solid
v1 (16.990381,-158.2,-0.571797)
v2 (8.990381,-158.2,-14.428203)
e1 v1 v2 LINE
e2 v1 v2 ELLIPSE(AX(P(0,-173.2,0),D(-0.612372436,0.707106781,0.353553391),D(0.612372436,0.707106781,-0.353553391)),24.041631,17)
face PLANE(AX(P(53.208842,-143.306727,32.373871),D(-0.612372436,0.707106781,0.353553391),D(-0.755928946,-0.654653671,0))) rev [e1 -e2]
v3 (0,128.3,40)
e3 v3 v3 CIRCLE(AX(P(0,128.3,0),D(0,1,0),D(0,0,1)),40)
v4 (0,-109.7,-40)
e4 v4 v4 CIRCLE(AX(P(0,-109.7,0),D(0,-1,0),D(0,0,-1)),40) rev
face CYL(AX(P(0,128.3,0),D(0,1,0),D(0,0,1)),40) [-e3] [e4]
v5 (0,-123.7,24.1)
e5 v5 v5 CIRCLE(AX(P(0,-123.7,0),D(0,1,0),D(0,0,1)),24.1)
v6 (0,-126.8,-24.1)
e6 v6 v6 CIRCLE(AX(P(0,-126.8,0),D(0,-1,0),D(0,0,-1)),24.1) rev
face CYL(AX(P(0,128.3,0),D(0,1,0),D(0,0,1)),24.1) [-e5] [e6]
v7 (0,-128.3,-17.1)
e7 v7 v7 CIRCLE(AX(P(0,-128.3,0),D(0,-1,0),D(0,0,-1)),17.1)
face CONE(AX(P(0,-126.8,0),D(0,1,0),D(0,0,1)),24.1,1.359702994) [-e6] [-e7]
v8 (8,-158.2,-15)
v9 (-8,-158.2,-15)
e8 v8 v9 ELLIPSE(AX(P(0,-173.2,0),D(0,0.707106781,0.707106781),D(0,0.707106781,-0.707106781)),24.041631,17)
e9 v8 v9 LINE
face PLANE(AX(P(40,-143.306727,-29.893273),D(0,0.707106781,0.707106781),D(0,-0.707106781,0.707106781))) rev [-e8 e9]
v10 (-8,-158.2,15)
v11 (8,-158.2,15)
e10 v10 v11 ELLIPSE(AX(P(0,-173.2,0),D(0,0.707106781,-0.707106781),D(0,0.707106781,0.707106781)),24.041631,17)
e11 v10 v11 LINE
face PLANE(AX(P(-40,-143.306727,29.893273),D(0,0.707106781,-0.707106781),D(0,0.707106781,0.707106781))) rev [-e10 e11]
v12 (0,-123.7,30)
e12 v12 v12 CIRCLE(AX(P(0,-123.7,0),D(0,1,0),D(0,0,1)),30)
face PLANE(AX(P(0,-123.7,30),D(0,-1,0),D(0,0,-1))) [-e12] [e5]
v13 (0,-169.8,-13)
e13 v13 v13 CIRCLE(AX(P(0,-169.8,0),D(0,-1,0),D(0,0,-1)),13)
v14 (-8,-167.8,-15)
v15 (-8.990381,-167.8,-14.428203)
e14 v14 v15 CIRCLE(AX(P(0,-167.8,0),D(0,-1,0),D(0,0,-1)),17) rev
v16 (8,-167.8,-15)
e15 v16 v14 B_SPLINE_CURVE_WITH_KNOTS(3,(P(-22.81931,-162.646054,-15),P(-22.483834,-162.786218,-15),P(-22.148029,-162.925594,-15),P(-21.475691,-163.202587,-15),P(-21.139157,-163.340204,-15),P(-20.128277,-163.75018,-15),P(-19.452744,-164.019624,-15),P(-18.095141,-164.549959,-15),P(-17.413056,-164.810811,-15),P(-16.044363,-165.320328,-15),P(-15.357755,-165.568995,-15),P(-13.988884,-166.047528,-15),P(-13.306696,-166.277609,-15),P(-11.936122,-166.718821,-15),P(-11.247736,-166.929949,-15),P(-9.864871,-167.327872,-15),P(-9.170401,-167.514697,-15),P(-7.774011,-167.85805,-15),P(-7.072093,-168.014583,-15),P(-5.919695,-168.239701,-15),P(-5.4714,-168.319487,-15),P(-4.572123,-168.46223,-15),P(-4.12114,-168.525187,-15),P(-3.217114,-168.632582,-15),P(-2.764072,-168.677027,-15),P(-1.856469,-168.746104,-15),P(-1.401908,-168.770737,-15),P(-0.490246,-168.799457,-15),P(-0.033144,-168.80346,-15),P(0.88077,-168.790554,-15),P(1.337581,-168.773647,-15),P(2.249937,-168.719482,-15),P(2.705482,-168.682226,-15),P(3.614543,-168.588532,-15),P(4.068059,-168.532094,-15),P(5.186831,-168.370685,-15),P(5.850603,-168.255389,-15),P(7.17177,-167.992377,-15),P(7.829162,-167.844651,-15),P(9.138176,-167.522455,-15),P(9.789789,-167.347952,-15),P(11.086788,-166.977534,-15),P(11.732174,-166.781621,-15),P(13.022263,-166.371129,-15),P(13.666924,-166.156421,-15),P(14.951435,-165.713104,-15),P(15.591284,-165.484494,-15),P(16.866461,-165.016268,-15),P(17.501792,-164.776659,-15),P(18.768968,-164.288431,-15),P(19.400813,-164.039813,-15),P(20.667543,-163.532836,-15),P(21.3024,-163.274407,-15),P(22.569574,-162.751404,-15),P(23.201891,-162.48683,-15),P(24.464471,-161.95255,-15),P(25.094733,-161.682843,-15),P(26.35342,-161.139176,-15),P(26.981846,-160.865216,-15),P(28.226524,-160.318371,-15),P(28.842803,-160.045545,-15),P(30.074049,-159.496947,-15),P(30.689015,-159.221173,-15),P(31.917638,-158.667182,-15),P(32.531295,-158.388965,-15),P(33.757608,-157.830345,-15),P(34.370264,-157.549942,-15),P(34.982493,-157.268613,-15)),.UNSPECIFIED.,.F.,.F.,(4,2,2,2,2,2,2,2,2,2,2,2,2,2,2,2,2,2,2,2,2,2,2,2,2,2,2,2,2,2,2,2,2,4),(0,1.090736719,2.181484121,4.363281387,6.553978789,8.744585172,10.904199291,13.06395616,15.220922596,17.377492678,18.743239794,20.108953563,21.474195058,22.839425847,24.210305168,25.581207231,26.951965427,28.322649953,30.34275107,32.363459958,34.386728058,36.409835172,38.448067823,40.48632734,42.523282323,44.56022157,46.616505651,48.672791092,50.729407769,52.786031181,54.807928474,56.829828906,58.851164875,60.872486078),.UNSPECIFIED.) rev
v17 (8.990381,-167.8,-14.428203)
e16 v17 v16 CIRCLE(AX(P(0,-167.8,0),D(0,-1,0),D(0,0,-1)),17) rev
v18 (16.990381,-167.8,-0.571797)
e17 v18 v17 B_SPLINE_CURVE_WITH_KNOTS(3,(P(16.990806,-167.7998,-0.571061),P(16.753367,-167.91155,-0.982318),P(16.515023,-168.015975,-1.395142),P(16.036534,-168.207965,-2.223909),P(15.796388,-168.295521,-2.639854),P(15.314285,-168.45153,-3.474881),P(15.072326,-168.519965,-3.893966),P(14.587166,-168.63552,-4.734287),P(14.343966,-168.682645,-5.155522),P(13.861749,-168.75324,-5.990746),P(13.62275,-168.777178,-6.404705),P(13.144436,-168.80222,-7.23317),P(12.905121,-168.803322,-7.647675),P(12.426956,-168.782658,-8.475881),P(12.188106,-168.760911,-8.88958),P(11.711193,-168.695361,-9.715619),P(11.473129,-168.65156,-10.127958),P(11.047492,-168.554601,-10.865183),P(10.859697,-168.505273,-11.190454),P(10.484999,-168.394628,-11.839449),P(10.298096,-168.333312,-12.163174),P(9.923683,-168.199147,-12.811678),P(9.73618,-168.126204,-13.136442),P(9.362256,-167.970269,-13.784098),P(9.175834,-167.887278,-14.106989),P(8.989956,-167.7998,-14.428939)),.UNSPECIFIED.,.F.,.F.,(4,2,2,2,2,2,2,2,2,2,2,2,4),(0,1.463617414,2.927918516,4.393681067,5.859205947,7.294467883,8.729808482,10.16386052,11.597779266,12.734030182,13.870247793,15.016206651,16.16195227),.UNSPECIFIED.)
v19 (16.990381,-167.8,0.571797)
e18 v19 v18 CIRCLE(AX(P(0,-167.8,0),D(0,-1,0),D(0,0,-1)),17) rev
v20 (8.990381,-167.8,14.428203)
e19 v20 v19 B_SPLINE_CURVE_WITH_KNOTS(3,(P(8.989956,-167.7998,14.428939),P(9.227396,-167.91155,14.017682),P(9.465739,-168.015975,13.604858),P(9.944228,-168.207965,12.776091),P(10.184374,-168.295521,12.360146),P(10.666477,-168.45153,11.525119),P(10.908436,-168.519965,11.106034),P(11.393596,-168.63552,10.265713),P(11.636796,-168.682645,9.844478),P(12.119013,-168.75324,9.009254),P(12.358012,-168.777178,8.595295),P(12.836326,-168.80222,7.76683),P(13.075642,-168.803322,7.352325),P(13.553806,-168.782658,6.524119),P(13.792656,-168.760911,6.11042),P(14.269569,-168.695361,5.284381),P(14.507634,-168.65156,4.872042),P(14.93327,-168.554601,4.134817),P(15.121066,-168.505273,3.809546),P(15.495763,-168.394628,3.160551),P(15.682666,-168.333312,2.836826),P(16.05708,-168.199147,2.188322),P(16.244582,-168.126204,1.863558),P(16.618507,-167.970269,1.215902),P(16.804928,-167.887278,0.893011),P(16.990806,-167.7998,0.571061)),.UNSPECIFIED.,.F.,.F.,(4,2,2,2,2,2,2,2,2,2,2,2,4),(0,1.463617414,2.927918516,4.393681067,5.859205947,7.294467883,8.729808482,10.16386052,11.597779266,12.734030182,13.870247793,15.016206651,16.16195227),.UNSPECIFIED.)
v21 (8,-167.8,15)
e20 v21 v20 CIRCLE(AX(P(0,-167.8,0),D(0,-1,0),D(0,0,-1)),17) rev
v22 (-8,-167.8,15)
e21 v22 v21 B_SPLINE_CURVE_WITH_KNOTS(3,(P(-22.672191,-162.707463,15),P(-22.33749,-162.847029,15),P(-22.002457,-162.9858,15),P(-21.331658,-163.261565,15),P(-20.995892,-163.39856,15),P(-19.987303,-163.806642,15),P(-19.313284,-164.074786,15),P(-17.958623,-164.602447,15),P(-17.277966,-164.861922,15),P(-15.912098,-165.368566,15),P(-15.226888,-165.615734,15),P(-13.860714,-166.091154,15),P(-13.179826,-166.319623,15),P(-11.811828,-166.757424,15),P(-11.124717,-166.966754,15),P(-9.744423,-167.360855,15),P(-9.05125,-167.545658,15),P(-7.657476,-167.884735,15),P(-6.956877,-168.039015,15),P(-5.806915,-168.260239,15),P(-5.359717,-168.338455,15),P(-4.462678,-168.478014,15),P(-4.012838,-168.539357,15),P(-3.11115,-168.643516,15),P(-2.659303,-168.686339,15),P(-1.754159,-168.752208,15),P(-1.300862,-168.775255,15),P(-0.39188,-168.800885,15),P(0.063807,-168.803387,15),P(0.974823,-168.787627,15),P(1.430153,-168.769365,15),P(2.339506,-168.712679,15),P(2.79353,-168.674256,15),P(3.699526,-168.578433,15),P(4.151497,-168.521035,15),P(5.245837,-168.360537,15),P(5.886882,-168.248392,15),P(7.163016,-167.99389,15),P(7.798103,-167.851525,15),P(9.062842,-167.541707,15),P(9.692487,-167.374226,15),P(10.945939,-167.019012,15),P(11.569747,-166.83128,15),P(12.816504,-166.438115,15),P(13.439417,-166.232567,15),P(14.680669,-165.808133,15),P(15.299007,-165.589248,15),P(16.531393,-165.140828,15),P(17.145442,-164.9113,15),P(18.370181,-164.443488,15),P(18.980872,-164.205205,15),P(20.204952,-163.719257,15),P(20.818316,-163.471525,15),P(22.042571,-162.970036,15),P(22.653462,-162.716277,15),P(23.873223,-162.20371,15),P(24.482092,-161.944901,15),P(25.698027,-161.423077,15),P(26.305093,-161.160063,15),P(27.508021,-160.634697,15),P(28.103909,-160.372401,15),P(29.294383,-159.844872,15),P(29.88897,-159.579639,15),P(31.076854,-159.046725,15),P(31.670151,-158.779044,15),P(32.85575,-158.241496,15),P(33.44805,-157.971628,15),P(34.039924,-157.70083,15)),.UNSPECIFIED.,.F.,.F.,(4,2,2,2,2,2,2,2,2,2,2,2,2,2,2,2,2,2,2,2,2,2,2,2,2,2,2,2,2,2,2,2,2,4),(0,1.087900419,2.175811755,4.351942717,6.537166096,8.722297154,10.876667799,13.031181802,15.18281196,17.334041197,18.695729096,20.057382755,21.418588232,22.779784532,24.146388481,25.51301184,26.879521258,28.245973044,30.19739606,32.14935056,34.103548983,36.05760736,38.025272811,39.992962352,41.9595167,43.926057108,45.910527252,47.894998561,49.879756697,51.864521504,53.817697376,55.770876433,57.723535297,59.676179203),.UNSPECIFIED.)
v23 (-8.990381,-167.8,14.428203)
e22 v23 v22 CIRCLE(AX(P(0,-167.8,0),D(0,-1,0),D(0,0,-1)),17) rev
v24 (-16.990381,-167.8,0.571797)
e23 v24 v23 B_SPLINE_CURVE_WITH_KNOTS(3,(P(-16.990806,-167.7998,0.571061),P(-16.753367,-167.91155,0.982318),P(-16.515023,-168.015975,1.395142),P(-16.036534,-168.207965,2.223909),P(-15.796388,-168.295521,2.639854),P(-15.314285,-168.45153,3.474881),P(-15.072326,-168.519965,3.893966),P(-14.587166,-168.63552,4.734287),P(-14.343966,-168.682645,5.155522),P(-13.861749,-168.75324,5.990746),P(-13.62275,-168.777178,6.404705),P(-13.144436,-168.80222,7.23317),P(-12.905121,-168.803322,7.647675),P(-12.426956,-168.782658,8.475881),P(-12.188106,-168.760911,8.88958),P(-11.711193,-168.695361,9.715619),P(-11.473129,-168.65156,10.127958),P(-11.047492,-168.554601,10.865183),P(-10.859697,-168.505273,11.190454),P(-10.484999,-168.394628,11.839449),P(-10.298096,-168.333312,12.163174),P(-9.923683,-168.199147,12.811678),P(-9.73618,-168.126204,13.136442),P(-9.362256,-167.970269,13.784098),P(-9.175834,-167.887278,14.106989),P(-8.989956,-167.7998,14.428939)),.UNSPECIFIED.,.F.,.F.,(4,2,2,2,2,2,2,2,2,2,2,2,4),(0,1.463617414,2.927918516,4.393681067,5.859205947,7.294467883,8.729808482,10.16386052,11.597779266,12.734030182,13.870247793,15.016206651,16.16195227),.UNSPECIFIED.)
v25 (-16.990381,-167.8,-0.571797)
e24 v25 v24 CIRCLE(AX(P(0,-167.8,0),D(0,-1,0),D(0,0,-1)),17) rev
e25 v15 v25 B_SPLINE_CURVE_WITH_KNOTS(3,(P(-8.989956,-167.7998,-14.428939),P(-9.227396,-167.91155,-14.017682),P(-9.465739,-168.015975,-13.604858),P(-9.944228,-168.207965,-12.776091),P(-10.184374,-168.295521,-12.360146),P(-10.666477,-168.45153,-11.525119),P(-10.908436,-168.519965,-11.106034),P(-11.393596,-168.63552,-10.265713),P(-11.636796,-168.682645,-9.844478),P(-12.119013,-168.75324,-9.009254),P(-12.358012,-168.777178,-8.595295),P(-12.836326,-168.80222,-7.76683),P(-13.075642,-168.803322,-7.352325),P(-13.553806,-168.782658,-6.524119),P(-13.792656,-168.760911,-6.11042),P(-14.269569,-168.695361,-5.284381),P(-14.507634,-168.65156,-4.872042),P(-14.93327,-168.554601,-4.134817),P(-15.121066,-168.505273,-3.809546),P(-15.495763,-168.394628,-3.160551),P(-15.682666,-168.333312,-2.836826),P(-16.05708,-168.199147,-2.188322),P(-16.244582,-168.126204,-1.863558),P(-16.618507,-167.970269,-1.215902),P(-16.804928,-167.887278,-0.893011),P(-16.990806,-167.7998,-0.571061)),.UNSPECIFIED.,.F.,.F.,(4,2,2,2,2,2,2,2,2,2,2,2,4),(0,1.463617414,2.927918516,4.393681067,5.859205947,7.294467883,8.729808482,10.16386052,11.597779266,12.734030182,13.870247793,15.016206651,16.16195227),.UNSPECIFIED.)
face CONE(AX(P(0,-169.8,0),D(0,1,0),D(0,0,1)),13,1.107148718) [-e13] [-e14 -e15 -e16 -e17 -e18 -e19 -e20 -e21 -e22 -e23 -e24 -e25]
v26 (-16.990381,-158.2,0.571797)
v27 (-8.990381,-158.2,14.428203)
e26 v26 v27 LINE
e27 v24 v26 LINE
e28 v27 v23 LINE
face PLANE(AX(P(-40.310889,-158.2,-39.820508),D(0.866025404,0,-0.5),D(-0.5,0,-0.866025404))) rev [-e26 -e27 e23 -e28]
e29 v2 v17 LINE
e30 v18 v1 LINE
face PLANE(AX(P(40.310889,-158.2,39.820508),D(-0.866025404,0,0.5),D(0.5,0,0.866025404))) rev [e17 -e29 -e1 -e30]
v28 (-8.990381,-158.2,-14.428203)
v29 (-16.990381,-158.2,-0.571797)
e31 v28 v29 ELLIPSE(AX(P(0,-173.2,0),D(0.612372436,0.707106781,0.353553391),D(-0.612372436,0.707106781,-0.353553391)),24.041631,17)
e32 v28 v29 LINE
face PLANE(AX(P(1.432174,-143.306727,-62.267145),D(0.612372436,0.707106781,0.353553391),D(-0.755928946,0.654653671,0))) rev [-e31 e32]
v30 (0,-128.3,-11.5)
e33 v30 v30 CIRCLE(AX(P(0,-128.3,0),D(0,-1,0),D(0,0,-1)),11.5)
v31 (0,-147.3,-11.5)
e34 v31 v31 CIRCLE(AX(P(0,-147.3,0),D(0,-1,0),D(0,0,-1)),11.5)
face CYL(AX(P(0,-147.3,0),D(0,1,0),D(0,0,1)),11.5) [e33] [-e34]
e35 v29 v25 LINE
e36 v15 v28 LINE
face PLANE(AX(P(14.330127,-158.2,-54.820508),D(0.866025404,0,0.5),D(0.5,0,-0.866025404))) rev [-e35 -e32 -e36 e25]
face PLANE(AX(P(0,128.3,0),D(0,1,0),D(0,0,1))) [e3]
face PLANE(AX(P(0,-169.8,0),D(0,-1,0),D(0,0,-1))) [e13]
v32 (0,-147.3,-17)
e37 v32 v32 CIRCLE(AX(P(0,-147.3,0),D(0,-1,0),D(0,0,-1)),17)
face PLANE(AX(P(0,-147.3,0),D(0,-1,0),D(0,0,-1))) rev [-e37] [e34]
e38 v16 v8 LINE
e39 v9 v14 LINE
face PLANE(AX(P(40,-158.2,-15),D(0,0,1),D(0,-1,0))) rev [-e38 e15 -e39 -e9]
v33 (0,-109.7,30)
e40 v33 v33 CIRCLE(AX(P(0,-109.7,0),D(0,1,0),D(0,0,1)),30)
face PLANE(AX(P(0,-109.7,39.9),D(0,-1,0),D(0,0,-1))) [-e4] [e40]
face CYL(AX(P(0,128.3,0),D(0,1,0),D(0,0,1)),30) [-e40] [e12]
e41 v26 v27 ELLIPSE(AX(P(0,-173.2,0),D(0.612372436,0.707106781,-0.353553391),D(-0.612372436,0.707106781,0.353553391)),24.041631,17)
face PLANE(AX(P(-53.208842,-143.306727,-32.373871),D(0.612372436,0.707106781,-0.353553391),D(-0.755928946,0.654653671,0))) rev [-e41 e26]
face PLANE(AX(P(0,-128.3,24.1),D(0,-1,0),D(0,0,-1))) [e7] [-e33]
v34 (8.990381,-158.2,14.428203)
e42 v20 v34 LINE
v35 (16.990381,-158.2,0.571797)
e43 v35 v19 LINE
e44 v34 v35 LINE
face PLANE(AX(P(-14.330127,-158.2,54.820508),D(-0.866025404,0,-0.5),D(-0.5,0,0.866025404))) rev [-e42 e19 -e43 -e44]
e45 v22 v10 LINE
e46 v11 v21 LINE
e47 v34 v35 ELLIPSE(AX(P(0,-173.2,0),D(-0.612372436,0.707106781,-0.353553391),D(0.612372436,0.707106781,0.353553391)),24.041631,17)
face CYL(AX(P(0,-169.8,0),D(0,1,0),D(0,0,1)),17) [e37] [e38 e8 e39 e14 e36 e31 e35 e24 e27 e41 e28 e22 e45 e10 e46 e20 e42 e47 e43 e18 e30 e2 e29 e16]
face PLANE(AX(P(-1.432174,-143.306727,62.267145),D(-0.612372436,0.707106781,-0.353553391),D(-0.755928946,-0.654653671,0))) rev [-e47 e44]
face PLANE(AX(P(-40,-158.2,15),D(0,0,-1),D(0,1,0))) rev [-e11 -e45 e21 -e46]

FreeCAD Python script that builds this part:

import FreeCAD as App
import Part
import Sketcher

V = App.Vector
Q = App.Units.Quantity


def edges_at(feature, points):
    """Names of the edges that pass closest to the given points."""
    edges = feature.Shape.Edges
    near = lambda p: min(range(len(edges)), key=lambda i: edges[i].distToShape(Part.Vertex(*p))[0])
    return sorted({f"Edge{near(p) + 1}" for p in points})

doc = App.newDocument("Part")
body = doc.addObject("PartDesign::Body", "Body")

# Sketch on YZ plane
sketch1 = doc.addObject("Sketcher::SketchObject", "Sketch")
body.addObject(sketch1)
sketch1.AttachmentSupport = (doc.YZ_Plane, [""])
sketch1.MapMode = "FlatFace"
sketch1.addGeometry([
    Part.LineSegment(V(-128.3, 0, 0), V(128.3, 0, 0)),  # 0
    Part.LineSegment(V(128.3, 0, 0), V(128.3, 39.9, 0)),  # 1
    Part.LineSegment(V(128.3, 39.9, 0), V(100.3, 39.9, 0)),  # 2
    Part.LineSegment(V(100.3, 39.9, 0), V(100.3, 40, 0)),  # 3
    Part.LineSegment(V(100.3, 40, 0), V(-99.7, 40, 0)),  # 4
    Part.LineSegment(V(-99.7, 40, 0), V(-99.7, 39.9, 0)),  # 5
    Part.LineSegment(V(-99.7, 39.9, 0), V(-109.7, 39.9, 0)),  # 6
    Part.LineSegment(V(-109.7, 39.9, 0), V(-109.7, 30, 0)),  # 7
    Part.LineSegment(V(-109.7, 30, 0), V(-123.7, 30, 0)),  # 8
    Part.LineSegment(V(-123.7, 30, 0), V(-123.7, 24.1, 0)),  # 9
    Part.LineSegment(V(-123.7, 24.1, 0), V(-128.3, 24.1, 0)),  # 10
    Part.LineSegment(V(-128.3, 24.1, 0), V(-128.3, 0, 0)),  # 11
], False)
sketch1.addConstraint([
    Sketcher.Constraint("Coincident", 0, 2, 1, 1),
    Sketcher.Constraint("Coincident", 1, 2, 2, 1),
    Sketcher.Constraint("Coincident", 2, 2, 3, 1),
    Sketcher.Constraint("Coincident", 3, 2, 4, 1),
    Sketcher.Constraint("Coincident", 4, 2, 5, 1),
    Sketcher.Constraint("Coincident", 5, 2, 6, 1),
    Sketcher.Constraint("Coincident", 6, 2, 7, 1),
    Sketcher.Constraint("Coincident", 7, 2, 8, 1),
    Sketcher.Constraint("Coincident", 8, 2, 9, 1),
    Sketcher.Constraint("Coincident", 9, 2, 10, 1),
    Sketcher.Constraint("Coincident", 10, 2, 11, 1),
    Sketcher.Constraint("Coincident", 11, 2, 0, 1),
    Sketcher.Constraint("Horizontal", 0),
    Sketcher.Constraint("Vertical", 1),
    Sketcher.Constraint("Horizontal", 2),
    Sketcher.Constraint("Vertical", 3),
    Sketcher.Constraint("Horizontal", 4),
    Sketcher.Constraint("Vertical", 5),
    Sketcher.Constraint("Horizontal", 6),
    Sketcher.Constraint("Vertical", 7),
    Sketcher.Constraint("Horizontal", 8),
    Sketcher.Constraint("Vertical", 9),
    Sketcher.Constraint("Horizontal", 10),
    Sketcher.Constraint("Vertical", 11),
    Sketcher.Constraint("Symmetric", 0, 2, 11, 2, -1, 1),
    Sketcher.Constraint("Horizontal", 2, 2, 5, 2),
    Sketcher.Constraint("DistanceX", 2, 2, 2, 1, Q("28 mm")),
    Sketcher.Constraint("DistanceX", 4, 2, 4, 1, Q("200 mm")),
    Sketcher.Constraint("DistanceX", 6, 2, 6, 1, Q("10 mm")),
    Sketcher.Constraint("DistanceX", 8, 2, 8, 1, Q("14 mm")),
    Sketcher.Constraint("DistanceX", 0, 1, 0, 2, Q("256.6 mm")),
    Sketcher.Constraint("DistanceY", 1, 1, 1, 2, Q("39.9 mm")),
    Sketcher.Constraint("DistanceY", 3, 1, 3, 2, Q("0.1 mm")),
    Sketcher.Constraint("DistanceY", 7, 2, 7, 1, Q("9.9 mm")),
    Sketcher.Constraint("DistanceY", 9, 2, 9, 1, Q("5.9 mm")),
])
revolution = doc.addObject("PartDesign::Revolution", "Revolution")
body.addObject(revolution)
revolution.Profile = sketch1
revolution.ReferenceAxis = (sketch1, ["H_Axis"])
revolution.Angle = 360
doc.recompute()

chamfer = doc.addObject("PartDesign::Chamfer", "Chamfer")
body.addObject(chamfer)
chamfer.Base = (revolution, edges_at(revolution, [(0, -128.3, -24.1)]))
chamfer.ChamferType = "Two distances"
chamfer.Size = 7
chamfer.Size2 = 1.5
chamfer.FlipDirection = True

# Sketch on XZ plane
sketch2 = doc.addObject("Sketcher::SketchObject", "Sketch001")
body.addObject(sketch2)
sketch2.AttachmentSupport = (doc.XZ_Plane, [""])
sketch2.MapMode = "FlatFace"
sketch2.AttachmentOffset = App.Placement(V(0, 0, 128.3), App.Rotation())
sketch2.addGeometry(Part.Circle(V(0, 0, 0), V(0, 0, 1), 12), False)
sketch2.addConstraint([
    Sketcher.Constraint("Coincident", 0, 3, -1, 1),
    Sketcher.Constraint("Diameter", 0, Q("23 mm")),
])
pad1 = doc.addObject("PartDesign::Pad", "Pad")
body.addObject(pad1)
pad1.Profile = sketch2
pad1.Length = 19

# Sketch on XZ plane
sketch3 = doc.addObject("Sketcher::SketchObject", "Sketch002")
body.addObject(sketch3)
sketch3.AttachmentSupport = (doc.XZ_Plane, [""])
sketch3.MapMode = "FlatFace"
sketch3.AttachmentOffset = App.Placement(V(0, 0, 147.3), App.Rotation())
sketch3.addGeometry(Part.Circle(V(0, 0, 0), V(0, 0, 1), 17), False)
sketch3.addConstraint([
    Sketcher.Constraint("Coincident", 0, 3, -1, 1),
    Sketcher.Constraint("Diameter", 0, Q("34 mm")),
])
pad2 = doc.addObject("PartDesign::Pad", "Pad001")
body.addObject(pad2)
pad2.Profile = sketch3
pad2.Length = 22.5
doc.recompute()

chamfer2 = doc.addObject("PartDesign::Chamfer", "Chamfer001")
body.addObject(chamfer2)
chamfer2.Base = (pad2, edges_at(pad2, [(-17, -169.8, 0)]))
chamfer2.ChamferType = "Two distances"
chamfer2.Size = 2
chamfer2.Size2 = 4

# Sketch on YZ plane
sketch4 = doc.addObject("Sketcher::SketchObject", "Sketch003")
body.addObject(sketch4)
sketch4.AttachmentSupport = (doc.YZ_Plane, [""])
sketch4.MapMode = "FlatFace"
sketch4.addGeometry([
    Part.LineSegment(V(-158, 15, 0), V(-143, 30, 0)),
    Part.LineSegment(V(-143, 30, 0), V(-177, 30, 0)),
    Part.LineSegment(V(-177, 30, 0), V(-177, 15, 0)),
    Part.LineSegment(V(-177, 15, 0), V(-158, 15, 0)),
], False)
sketch4.addConstraint([
    Sketcher.Constraint("Coincident", 0, 2, 1, 1),
    Sketcher.Constraint("Coincident", 1, 2, 2, 1),
    Sketcher.Constraint("Coincident", 2, 2, 3, 1),
    Sketcher.Constraint("Coincident", 3, 2, 0, 1),
    Sketcher.Constraint("Horizontal", 1),
    Sketcher.Constraint("Vertical", 2),
    Sketcher.Constraint("Horizontal", 3),
    Sketcher.Constraint("Angle", 0, Q("45 deg")),
    Sketcher.Constraint("DistanceY", -1, 1, 2, 2, Q("15 mm")),
    Sketcher.Constraint("DistanceX", 3, 2, -1, 1, Q("158.2 mm")),
    Sketcher.Constraint("Distance", 0, Q("21.062269 mm")),
    Sketcher.Constraint("DistanceX", 1, 2, 1, 1, Q("33.774556 mm")),
])
pocket1 = doc.addObject("PartDesign::Pocket", "Pocket")
body.addObject(pocket1)
pocket1.Profile = sketch4
pocket1.Length = 82
pocket1.Midplane = True
doc.recompute()

polarpattern = doc.addObject("PartDesign::PolarPattern", "PolarPattern")
body.addObject(polarpattern)
polarpattern.Originals = [pocket1]
polarpattern.Axis = (doc.Y_Axis, [""])
polarpattern.Angle = 360
polarpattern.Occurrences = 6
body.Tip = polarpattern

# Sketch on XZ plane
sketch5 = doc.addObject("Sketcher::SketchObject", "Sketch004")
body.addObject(sketch5)
sketch5.AttachmentSupport = (doc.XZ_Plane, [""])
sketch5.MapMode = "FlatFace"
sketch5.AttachmentOffset = App.Placement(V(0, 0, -128.3), App.Rotation())
sketch5.addGeometry(Part.Circle(V(0, 0, 0), V(0, 0, 1), 40), False)
sketch5.addConstraint([
    Sketcher.Constraint("Coincident", 0, 3, -1, 1),
    Sketcher.Constraint("Diameter", 0, Q("80 mm")),
])
pad3 = doc.addObject("PartDesign::Pad", "Pad002")
body.addObject(pad3)
pad3.Profile = sketch5
pad3.Length = 238

doc.recompute()
